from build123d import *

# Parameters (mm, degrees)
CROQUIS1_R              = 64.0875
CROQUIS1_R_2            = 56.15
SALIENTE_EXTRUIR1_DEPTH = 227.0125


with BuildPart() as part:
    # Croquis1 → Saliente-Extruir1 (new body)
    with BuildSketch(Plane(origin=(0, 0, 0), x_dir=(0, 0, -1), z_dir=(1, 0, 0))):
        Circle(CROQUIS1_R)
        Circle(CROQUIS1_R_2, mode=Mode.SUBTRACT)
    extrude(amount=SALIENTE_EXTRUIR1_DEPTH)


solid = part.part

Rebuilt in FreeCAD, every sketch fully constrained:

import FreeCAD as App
import Part
import Sketcher
Q = App.Units.Quantity

doc = App.newDocument("Part")
body = doc.addObject("PartDesign::Body", "Body")

sketch1 = body.newObject("Sketcher::SketchObject", "Sketch")
sketch1.AttachmentSupport = (doc.getObject("YZ_Plane"), [""])
sketch1.MapMode = "FlatFace"
sketch1.addGeometry([
    Part.Circle(App.Vector(0, 0, 0), App.Vector(0, 0, 1), 64),
    Part.Circle(App.Vector(0, 0, 0), App.Vector(0, 0, 1), 56),
], False)
sketch1.addConstraint([
    Sketcher.Constraint("Coincident", 0, 3, -1, 1),
    Sketcher.Constraint("Coincident", 1, 3, -1, 1),
    Sketcher.Constraint("Diameter", 1, Q("112.3 mm")),
    Sketcher.Constraint("Diameter", 0, Q("128.175 mm")),
])
pad1 = body.newObject("PartDesign::Pad", "Pad")
pad1.Profile = sketch1
pad1.Length = 227.0125

doc.recompute()
